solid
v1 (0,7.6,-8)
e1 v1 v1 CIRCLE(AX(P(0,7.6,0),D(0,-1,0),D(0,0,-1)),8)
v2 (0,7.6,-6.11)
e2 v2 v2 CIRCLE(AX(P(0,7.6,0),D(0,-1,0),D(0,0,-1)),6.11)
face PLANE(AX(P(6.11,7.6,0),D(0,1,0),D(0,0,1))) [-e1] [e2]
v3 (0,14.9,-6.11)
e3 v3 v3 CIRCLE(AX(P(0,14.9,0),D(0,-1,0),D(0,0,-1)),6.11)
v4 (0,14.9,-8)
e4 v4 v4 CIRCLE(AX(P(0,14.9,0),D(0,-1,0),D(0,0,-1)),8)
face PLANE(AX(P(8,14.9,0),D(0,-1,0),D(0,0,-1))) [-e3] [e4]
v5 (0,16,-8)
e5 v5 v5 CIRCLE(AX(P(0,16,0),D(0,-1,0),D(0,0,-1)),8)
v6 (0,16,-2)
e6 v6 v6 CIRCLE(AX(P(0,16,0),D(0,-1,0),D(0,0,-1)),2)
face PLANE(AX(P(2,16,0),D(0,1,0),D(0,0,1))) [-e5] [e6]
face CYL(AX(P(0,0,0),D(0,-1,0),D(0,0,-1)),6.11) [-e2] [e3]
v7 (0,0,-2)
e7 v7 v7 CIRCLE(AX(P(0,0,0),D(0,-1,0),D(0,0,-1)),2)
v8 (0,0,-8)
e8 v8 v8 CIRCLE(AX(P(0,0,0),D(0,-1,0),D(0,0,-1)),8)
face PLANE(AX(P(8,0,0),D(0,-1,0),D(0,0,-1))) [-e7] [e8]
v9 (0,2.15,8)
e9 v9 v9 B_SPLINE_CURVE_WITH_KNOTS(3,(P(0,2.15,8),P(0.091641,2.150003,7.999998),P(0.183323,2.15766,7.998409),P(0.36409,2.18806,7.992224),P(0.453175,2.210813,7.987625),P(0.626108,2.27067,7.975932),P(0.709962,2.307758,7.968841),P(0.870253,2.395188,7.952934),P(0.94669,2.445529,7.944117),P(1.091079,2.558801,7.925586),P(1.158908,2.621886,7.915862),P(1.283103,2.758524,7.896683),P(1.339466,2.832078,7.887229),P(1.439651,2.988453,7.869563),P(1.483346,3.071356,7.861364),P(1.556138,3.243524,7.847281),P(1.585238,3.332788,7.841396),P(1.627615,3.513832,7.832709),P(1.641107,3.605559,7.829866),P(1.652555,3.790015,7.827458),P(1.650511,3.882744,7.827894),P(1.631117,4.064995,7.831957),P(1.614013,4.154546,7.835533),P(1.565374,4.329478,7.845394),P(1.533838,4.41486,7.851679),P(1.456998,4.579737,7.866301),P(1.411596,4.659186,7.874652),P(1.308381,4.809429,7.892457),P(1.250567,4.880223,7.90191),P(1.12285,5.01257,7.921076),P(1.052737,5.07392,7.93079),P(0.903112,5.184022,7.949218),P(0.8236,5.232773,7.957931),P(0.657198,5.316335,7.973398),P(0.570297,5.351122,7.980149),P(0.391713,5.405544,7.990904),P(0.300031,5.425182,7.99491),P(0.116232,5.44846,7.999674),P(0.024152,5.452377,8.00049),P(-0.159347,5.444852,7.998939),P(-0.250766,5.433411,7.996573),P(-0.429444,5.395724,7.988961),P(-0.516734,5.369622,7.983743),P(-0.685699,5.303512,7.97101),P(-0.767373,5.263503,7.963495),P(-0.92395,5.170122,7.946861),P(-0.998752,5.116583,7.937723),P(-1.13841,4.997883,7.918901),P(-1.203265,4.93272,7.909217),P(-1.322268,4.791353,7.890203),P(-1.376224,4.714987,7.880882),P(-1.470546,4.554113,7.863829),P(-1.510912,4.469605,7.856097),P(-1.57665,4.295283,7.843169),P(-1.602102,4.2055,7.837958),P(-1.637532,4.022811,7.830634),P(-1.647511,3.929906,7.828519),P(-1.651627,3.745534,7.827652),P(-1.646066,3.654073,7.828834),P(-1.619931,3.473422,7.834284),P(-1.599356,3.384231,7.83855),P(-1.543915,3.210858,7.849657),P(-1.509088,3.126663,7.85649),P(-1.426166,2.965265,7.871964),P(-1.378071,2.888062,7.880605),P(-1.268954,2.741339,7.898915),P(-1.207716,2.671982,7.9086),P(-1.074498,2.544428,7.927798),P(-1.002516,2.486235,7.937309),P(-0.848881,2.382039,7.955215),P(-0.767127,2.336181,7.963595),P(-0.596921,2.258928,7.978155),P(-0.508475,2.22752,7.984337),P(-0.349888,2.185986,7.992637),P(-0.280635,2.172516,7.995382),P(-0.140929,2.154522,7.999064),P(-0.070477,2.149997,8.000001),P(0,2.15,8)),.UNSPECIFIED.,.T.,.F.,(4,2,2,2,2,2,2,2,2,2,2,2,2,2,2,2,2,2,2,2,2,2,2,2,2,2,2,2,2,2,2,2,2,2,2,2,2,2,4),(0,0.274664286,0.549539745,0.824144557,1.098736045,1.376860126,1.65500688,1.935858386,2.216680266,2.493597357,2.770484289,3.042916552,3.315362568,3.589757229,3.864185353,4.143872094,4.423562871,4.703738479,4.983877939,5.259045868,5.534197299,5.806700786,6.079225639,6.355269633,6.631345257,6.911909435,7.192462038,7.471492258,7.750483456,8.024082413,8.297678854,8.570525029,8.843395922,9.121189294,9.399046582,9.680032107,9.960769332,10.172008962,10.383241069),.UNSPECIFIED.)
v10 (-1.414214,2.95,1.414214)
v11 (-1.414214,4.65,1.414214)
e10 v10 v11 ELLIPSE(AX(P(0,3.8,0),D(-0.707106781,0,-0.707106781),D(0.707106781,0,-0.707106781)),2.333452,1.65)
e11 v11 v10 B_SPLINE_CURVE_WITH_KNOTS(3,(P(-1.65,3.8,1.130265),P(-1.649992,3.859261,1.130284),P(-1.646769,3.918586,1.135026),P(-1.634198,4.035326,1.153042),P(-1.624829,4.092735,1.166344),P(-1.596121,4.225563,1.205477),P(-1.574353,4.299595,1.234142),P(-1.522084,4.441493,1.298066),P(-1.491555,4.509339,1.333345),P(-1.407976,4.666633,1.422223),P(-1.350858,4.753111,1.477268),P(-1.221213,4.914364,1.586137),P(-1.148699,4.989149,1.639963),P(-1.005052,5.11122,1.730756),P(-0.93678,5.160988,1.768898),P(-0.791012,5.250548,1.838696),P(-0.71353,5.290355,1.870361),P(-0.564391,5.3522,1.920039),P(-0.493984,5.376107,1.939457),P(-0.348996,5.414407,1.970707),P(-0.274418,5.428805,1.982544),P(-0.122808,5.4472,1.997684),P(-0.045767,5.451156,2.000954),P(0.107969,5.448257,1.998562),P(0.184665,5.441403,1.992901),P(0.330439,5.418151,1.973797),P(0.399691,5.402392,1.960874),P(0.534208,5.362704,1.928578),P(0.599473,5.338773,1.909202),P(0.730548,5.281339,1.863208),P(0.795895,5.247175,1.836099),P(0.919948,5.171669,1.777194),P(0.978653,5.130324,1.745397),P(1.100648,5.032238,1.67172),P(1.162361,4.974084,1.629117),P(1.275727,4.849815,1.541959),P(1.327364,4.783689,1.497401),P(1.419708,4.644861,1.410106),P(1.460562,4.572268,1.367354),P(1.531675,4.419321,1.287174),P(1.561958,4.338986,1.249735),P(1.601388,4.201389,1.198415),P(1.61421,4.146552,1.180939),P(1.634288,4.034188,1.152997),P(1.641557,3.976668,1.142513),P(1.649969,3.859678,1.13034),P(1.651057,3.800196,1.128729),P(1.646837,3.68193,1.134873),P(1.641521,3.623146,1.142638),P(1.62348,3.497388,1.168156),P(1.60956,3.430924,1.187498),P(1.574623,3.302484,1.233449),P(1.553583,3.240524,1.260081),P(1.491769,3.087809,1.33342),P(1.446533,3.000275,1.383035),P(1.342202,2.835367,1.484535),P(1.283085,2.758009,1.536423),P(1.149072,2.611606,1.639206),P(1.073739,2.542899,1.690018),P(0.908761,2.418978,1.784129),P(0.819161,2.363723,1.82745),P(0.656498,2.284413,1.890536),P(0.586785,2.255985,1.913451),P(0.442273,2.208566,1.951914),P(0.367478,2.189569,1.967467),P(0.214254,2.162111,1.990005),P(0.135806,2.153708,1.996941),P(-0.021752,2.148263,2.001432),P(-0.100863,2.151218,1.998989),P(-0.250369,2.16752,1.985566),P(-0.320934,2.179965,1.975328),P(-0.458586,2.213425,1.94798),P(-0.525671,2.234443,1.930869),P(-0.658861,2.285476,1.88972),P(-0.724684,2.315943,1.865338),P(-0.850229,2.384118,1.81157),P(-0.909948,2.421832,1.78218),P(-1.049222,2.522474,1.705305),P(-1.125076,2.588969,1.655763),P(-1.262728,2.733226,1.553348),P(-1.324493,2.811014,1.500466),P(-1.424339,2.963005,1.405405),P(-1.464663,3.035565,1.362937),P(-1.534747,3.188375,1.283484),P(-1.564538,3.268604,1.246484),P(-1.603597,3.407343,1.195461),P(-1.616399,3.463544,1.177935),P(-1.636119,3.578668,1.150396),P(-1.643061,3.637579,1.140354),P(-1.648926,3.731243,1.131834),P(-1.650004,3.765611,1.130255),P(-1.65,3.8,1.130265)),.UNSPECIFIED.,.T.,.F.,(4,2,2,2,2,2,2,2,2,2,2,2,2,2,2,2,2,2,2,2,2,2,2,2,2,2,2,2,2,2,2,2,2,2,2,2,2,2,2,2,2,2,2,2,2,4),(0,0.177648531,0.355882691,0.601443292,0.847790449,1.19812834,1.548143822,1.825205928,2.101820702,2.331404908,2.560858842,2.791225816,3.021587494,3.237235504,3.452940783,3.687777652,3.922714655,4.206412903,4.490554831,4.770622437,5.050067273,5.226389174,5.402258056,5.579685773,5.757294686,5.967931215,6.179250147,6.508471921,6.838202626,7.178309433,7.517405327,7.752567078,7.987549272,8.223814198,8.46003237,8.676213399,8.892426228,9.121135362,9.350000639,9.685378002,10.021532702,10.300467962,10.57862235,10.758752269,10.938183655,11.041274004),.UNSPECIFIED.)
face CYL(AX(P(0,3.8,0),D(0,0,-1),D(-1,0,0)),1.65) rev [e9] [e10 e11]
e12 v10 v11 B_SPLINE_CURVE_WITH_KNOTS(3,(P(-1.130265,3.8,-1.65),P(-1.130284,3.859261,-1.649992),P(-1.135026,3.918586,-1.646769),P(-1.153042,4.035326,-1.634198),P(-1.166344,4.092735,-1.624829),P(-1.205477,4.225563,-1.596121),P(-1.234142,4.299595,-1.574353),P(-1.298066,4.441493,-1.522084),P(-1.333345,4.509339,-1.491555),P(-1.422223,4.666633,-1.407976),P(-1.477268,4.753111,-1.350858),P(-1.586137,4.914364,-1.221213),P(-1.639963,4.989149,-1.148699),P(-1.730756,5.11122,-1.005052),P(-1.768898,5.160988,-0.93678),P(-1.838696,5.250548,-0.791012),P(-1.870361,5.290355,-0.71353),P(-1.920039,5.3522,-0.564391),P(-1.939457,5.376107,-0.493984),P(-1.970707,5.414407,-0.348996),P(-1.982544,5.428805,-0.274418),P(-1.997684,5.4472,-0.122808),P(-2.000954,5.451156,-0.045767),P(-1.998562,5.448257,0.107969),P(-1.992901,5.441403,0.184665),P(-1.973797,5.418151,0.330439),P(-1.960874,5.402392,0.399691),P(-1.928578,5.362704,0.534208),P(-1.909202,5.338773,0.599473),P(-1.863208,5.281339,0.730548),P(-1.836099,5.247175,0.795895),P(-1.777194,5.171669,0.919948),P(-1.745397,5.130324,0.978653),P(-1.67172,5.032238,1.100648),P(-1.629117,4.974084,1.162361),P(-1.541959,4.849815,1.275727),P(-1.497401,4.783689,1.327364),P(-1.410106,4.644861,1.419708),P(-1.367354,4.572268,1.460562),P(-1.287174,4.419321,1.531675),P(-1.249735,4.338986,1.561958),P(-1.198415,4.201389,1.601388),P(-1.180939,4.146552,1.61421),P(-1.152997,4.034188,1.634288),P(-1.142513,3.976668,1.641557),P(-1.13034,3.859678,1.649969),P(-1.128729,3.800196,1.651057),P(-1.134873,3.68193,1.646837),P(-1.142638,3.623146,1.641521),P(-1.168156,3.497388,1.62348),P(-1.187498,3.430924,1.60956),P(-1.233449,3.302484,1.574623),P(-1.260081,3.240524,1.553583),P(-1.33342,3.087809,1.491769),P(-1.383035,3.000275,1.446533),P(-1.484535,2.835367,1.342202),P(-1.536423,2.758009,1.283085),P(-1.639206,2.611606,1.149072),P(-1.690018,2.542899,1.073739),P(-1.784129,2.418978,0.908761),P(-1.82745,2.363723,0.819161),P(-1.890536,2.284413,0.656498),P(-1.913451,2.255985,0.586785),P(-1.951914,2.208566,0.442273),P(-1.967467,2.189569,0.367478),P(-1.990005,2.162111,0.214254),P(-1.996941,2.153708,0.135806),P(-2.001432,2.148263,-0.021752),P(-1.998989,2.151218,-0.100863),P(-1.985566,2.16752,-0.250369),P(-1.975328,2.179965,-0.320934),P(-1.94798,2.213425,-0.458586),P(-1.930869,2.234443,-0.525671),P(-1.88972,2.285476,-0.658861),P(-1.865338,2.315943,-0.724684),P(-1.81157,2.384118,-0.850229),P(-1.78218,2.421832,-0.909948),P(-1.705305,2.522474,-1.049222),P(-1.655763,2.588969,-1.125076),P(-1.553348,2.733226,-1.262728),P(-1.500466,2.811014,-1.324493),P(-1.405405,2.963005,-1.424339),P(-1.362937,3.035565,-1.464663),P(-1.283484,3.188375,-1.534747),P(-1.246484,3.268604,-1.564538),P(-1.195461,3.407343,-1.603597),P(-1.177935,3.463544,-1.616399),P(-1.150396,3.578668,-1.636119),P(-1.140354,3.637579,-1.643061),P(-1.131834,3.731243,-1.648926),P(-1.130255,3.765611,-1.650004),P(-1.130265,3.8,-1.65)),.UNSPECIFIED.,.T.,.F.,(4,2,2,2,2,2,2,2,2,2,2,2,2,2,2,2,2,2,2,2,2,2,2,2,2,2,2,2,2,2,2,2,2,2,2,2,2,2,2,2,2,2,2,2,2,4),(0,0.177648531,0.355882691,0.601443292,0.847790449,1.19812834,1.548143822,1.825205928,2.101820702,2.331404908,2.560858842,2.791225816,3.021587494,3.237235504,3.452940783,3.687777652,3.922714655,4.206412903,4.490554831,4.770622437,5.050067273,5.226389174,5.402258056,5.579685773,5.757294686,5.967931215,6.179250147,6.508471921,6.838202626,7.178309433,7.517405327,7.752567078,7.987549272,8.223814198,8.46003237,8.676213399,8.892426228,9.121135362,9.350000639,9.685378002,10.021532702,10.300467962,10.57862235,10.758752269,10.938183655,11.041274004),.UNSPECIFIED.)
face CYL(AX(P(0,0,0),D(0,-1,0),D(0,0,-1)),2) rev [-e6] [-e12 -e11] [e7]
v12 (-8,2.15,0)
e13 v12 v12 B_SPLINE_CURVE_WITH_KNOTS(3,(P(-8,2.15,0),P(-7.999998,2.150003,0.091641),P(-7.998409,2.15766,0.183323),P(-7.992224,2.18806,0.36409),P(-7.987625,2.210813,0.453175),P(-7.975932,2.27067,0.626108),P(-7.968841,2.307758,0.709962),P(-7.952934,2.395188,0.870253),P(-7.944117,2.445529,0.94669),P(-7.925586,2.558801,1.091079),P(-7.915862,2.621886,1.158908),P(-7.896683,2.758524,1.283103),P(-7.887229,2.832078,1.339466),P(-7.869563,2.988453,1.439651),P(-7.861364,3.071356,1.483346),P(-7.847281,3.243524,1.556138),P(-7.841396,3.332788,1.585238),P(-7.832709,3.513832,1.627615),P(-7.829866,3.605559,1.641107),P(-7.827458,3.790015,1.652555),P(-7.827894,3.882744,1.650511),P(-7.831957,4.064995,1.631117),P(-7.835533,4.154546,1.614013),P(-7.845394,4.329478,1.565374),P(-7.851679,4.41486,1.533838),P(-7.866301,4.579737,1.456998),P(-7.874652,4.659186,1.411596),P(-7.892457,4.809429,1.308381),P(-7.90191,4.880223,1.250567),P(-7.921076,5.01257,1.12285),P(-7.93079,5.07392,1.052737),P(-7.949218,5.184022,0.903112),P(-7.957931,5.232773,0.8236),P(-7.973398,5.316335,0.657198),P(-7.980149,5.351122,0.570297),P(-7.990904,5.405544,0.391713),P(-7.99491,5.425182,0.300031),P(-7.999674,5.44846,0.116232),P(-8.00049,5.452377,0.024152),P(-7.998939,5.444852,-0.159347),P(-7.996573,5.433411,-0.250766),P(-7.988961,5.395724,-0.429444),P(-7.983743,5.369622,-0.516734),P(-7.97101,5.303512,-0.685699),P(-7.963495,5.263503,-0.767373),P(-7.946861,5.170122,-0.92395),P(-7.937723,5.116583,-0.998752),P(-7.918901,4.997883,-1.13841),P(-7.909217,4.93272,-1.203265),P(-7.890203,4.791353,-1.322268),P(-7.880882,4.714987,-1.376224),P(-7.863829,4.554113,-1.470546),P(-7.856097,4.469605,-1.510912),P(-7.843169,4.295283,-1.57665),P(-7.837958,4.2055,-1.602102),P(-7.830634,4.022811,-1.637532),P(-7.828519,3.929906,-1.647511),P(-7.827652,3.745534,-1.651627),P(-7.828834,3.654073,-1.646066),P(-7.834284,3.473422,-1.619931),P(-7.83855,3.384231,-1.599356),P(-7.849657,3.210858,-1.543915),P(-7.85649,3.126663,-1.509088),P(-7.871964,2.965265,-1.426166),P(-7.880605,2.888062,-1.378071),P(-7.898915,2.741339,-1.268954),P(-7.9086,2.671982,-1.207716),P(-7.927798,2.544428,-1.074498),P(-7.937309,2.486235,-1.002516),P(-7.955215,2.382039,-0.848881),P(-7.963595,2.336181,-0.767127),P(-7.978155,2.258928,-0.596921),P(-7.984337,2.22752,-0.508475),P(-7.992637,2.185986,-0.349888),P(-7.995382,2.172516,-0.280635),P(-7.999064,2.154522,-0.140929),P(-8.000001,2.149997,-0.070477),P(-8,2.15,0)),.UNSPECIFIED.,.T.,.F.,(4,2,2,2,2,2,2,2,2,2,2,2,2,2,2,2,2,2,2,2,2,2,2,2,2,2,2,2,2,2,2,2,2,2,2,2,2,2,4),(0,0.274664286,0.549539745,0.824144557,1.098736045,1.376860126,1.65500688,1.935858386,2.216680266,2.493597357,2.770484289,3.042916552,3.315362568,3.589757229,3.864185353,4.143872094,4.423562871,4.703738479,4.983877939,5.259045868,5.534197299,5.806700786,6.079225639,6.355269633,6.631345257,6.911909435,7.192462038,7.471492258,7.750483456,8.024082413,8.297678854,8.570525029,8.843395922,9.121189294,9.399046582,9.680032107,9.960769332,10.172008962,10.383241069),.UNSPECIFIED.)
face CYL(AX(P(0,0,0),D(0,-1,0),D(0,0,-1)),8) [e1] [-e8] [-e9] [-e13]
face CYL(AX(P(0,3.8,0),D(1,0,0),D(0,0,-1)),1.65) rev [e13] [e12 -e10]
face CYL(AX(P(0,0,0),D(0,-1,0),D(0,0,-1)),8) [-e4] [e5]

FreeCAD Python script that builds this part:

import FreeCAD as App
import Part
import Sketcher


def add_polygon(sketch, points):
    """Adds a closed chain of lines whose ends are joined by coincident constraints."""
    first, n = sketch.GeometryCount, len(points)
    for a, b in zip(points, points[1:] + points[:1]):
        sketch.addGeometry(Part.LineSegment(App.Vector(*a, 0), App.Vector(*b, 0)), False)
    for i in range(n):
        sketch.addConstraint(Sketcher.Constraint("Coincident", first + i, 2, first + (i + 1) % n, 1))

doc = App.newDocument("Part")
body = doc.addObject("PartDesign::Body", "Body")

# Sketch on XY plane
sketch1 = body.newObject("Sketcher::SketchObject", "Sketch")
sketch1.AttachmentSupport = (doc.getObject("XY_Plane"), [""])
sketch1.MapMode = "FlatFace"
add_polygon(sketch1, [(8, 16), (2, 16), (2, 0), (8, 0), (8, 7.6), (6.1, 7.6), (6.1, 14.9), (8, 14.9)])  # lines 0-7
sketch1.addConstraint([
    Sketcher.Constraint("Horizontal", 0),
    Sketcher.Constraint("Vertical", 1),
    Sketcher.Constraint("Horizontal", 2),
    Sketcher.Constraint("Vertical", 3),
    Sketcher.Constraint("Horizontal", 4),
    Sketcher.Constraint("Vertical", 5),
    Sketcher.Constraint("Horizontal", 6),
    Sketcher.Constraint("Vertical", 7),
    Sketcher.Constraint("PointOnObject", 1, 2, -1),
    Sketcher.Constraint("Vertical", 3, 2, 6, 2),
    Sketcher.Constraint("DistanceX", 0, 2, 0, 1, 6.0),
    Sketcher.Constraint("DistanceY", 1, 2, 1, 1, 16.0),
    Sketcher.Constraint("DistanceY", 3, 1, 3, 2, 7.6),
    Sketcher.Constraint("DistanceY", 5, 1, 5, 2, 7.3),
    Sketcher.Constraint("DistanceX", -1, 1, 0, 2, 2.0),
    Sketcher.Constraint("DistanceX", 4, 2, 4, 1, 1.89),
])
revolution = body.newObject("PartDesign::Revolution", "Revolution")
revolution.Profile = sketch1
revolution.ReferenceAxis = (sketch1, ["V_Axis"])
revolution.Angle = 360

# Sketch on YZ plane
sketch2 = body.newObject("Sketcher::SketchObject", "Sketch001")
sketch2.AttachmentSupport = (doc.getObject("YZ_Plane"), [""])
sketch2.MapMode = "FlatFace"
add_polygon(sketch2, [(3.8, 8), (3.8, 0), (5.5, 0), (5.5, 8)])  # lines 0-3
sketch2.addGeometry(Part.LineSegment(App.Vector(3.8, 0, 0), App.Vector(3.8, 8, 0)), True)  # axis
sketch2.addConstraint([
    Sketcher.Constraint("Vertical", 0),
    Sketcher.Constraint("Horizontal", 1),
    Sketcher.Constraint("Vertical", 2),
    Sketcher.Constraint("Horizontal", 3),
    Sketcher.Constraint("Vertical", 4),
    Sketcher.Constraint("Coincident", 4, 1, 0, 2),
    Sketcher.Constraint("PointOnObject", 0, 2, -1),
    Sketcher.Constraint("Horizontal", 2, 2, 4, 2),
    Sketcher.Constraint("DistanceY", 0, 2, 0, 1, 8.0),
    Sketcher.Constraint("DistanceX", 1, 1, 1, 2, 1.65),
    Sketcher.Constraint("DistanceX", -1, 1, 0, 2, 3.8),
])
groove = body.newObject("PartDesign::Groove", "Groove")
groove.Profile = sketch2
groove.ReferenceAxis = (sketch2, ["Axis0"])
groove.Angle = 360
doc.recompute()

polarpattern = body.newObject("PartDesign::PolarPattern", "PolarPattern")
polarpattern.Originals = [groove]
polarpattern.Axis = (doc.getObject("Y_Axis"), [""])
polarpattern.Angle = 90
polarpattern.Occurrences = 2
polarpattern.Reversed = True
body.Tip = polarpattern

doc.recompute()
